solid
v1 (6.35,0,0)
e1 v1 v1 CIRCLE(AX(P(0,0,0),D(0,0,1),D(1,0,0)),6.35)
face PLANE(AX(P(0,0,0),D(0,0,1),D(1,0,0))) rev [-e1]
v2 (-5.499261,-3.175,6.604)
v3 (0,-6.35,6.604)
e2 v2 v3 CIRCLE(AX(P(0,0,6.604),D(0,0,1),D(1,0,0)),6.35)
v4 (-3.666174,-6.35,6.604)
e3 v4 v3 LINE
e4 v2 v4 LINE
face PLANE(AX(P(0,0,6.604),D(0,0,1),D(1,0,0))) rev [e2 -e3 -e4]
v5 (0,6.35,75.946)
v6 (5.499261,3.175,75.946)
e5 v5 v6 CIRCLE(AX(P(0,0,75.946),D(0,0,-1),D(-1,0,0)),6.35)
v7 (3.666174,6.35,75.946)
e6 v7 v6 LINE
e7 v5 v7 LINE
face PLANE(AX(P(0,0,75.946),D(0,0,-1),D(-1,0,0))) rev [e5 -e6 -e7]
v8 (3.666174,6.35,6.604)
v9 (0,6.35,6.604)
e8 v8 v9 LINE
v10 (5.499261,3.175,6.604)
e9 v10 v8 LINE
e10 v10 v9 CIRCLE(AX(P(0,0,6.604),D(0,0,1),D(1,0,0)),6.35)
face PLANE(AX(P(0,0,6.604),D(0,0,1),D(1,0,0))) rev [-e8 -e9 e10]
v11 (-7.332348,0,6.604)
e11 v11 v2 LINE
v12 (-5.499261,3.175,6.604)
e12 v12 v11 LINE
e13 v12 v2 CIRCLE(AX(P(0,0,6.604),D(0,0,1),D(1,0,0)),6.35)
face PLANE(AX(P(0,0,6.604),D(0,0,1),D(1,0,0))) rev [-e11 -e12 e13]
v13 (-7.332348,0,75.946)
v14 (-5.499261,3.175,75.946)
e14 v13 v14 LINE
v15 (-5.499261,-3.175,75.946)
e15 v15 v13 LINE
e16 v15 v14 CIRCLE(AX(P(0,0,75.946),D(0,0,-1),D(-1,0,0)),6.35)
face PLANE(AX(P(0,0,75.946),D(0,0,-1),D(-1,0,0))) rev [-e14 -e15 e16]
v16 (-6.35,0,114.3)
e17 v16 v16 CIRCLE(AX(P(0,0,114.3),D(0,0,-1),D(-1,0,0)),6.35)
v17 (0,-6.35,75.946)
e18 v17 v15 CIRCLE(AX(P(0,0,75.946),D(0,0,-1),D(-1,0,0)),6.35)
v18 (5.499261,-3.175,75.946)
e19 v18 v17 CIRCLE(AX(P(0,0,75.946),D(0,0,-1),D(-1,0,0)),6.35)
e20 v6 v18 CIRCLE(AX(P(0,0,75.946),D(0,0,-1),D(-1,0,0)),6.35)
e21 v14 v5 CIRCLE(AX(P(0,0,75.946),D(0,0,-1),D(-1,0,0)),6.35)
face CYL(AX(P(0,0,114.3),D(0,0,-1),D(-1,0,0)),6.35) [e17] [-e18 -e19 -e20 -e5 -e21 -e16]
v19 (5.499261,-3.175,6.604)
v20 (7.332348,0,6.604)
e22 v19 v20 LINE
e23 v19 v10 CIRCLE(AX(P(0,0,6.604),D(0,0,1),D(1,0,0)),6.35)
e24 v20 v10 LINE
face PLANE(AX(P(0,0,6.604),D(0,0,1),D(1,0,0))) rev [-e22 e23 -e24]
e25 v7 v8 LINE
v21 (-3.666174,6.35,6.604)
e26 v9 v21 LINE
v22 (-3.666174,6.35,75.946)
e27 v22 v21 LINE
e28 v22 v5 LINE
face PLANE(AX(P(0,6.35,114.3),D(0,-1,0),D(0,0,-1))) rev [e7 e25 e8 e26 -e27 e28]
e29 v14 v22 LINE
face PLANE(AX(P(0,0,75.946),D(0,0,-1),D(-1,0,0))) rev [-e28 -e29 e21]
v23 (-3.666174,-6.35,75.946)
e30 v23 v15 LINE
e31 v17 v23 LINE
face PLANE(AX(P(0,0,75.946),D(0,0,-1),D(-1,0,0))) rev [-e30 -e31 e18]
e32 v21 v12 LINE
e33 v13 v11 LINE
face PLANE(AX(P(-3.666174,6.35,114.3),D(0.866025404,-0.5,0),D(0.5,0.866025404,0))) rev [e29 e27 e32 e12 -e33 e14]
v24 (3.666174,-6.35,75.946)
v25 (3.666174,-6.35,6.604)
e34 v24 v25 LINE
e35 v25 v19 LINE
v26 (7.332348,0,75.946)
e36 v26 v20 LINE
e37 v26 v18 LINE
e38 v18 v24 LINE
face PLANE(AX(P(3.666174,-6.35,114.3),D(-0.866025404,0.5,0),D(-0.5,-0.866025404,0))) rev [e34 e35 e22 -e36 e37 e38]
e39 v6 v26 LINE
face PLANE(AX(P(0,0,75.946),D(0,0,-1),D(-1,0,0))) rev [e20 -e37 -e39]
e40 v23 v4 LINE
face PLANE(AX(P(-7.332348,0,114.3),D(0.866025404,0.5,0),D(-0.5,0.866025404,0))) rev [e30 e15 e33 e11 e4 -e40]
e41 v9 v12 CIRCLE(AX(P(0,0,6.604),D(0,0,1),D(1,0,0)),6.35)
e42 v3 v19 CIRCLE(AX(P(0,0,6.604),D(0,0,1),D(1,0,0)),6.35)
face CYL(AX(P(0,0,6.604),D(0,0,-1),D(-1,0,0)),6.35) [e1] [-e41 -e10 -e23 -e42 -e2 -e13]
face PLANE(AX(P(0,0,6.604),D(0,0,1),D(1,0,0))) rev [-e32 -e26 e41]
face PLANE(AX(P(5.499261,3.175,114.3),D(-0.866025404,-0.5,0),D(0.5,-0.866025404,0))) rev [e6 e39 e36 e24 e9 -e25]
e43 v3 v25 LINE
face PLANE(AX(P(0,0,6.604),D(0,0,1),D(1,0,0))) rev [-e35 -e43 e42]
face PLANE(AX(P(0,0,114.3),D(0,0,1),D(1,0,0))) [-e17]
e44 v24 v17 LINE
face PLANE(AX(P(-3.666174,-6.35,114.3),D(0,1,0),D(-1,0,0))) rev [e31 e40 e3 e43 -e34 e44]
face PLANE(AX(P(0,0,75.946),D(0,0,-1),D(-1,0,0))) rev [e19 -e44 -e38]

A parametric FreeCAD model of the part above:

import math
import FreeCAD as App
import Part
import Sketcher
Q = App.Units.Quantity


def add_polygon(sketch, points):
    """Adds a closed chain of lines whose ends are joined by coincident constraints."""
    first, n = sketch.GeometryCount, len(points)
    for a, b in zip(points, points[1:] + points[:1]):
        sketch.addGeometry(Part.LineSegment(App.Vector(*a, 0), App.Vector(*b, 0)), False)
    for i in range(n):
        sketch.addConstraint(Sketcher.Constraint("Coincident", first + i, 2, first + (i + 1) % n, 1))

doc = App.newDocument("Part")
body = doc.addObject("PartDesign::Body", "Body")

sketch1 = doc.addObject("Sketcher::SketchObject", "Sketch")
body.addObject(sketch1)
sketch1.AttachmentSupport = (doc.XY_Plane, [""])
sketch1.MapMode = "FlatFace"
add_polygon(sketch1, [(7, 0), (4, 6), (-4, 6), (-7, 0), (-4, -6), (4, -6)])
sketch1.addConstraint(Sketcher.Constraint("Horizontal", 1))
sketch1.addConstraint(Sketcher.Constraint("Horizontal", 4))
sketch1.addConstraint(Sketcher.Constraint("Symmetric", 0, 2, 3, 2, -1, 1))
sketch1.addConstraint(Sketcher.Constraint("Symmetric", 2, 2, 5, 2, -1, 1))
sketch1.addConstraint(Sketcher.Constraint("PointOnObject", 2, 2, -1))
sketch1.addConstraint(Sketcher.Constraint("Parallel", 2, 5))
sketch1.addConstraint(Sketcher.Constraint("Vertical", 1, 2, 3, 2))
sketch1.addConstraint(Sketcher.Constraint("Angle", 0, Q("120 deg")))
sketch1.addConstraint(Sketcher.Constraint("DistanceY", 3, 2, 1, 2, Q("0.5 in")))
sketch1.addConstraint(Sketcher.Constraint("DistanceX", 1, 2, 1, 1, Q("7.332348 mm")))
pad1 = doc.addObject("PartDesign::Pad", "Pad")
body.addObject(pad1)
pad1.Profile = sketch1
pad1.Length = Q("4.5 in")

sketch2 = doc.addObject("Sketcher::SketchObject", "Sketch001")
body.addObject(sketch2)
sketch2.AttachmentSupport = (doc.XY_Plane, [""])
sketch2.MapMode = "FlatFace"
sketch2.addGeometry(Part.ArcOfCircle(Part.Circle(App.Vector(0, 0, 0), App.Vector(0, 0, 1), 6.4), math.radians(150), math.radians(210)), False)
sketch2.addGeometry(Part.LineSegment(App.Vector(-5.5, 3.2, 0), App.Vector(-7.3, 0, 0)), False)
sketch2.addGeometry(Part.LineSegment(App.Vector(-7.3, 0, 0), App.Vector(-5.5, -3.2, 0)), False)
sketch2.addGeometry(Part.ArcOfCircle(Part.Circle(App.Vector(0, 0, 0), App.Vector(0, 0, 1), 6.3), math.radians(90), math.radians(150)), False)
sketch2.addGeometry(Part.LineSegment(App.Vector(0, 6.3, 0), App.Vector(-3.7, 6.3, 0)), False)
sketch2.addGeometry(Part.LineSegment(App.Vector(-3.7, 6.3, 0), App.Vector(-5.5, 3.2, 0)), False)
sketch2.addGeometry(Part.ArcOfCircle(Part.Circle(App.Vector(0, 0, 0), App.Vector(0, 0, 1), 6.3), math.radians(30), math.radians(90)), False)
sketch2.addGeometry(Part.LineSegment(App.Vector(5.5, 3.2, 0), App.Vector(3.7, 6.3, 0)), False)
sketch2.addGeometry(Part.LineSegment(App.Vector(3.7, 6.3, 0), App.Vector(0, 6.3, 0)), False)
sketch2.addGeometry(Part.LineSegment(App.Vector(5.5, -3.2, 0), App.Vector(7.3, 0, 0)), False)
sketch2.addGeometry(Part.LineSegment(App.Vector(7.3, 0, 0), App.Vector(5.5, 3.2, 0)), False)
sketch2.addGeometry(Part.ArcOfCircle(Part.Circle(App.Vector(0, 0, 0), App.Vector(0, 0, 1), 6.4), math.radians(0), math.radians(30)), False)
sketch2.addGeometry(Part.ArcOfCircle(Part.Circle(App.Vector(0, 0, 0), App.Vector(0, 0, 1), 6.4), math.radians(-30), math.radians(0)), False)
sketch2.addGeometry(Part.LineSegment(App.Vector(3.7, -6.3, 0), App.Vector(5.5, -3.2, 0)), False)
sketch2.addGeometry(Part.ArcOfCircle(Part.Circle(App.Vector(0, 0, 0), App.Vector(0, 0, 1), 6.3), math.radians(-90), math.radians(-30)), False)
sketch2.addGeometry(Part.LineSegment(App.Vector(0, -6.3, 0), App.Vector(3.7, -6.3, 0)), False)
sketch2.addGeometry(Part.LineSegment(App.Vector(-3.7, -6.3, 0), App.Vector(0, -6.3, 0)), False)
sketch2.addGeometry(Part.ArcOfCircle(Part.Circle(App.Vector(0, 0, 0), App.Vector(0, 0, 1), 6.4), math.radians(-150), math.radians(-90)), False)
sketch2.addGeometry(Part.LineSegment(App.Vector(-5.5, -3.2, 0), App.Vector(-3.7, -6.3, 0)), False)
sketch2.addConstraint(Sketcher.Constraint("Tangent", 0, 1, 1, 1))
sketch2.addConstraint(Sketcher.Constraint("Coincident", 1, 2, 2, 1))
sketch2.addConstraint(Sketcher.Constraint("Tangent", 2, 2, 0, 2))
sketch2.addConstraint(Sketcher.Constraint("Tangent", 3, 1, 4, 1))
sketch2.addConstraint(Sketcher.Constraint("Coincident", 4, 2, 5, 1))
sketch2.addConstraint(Sketcher.Constraint("Tangent", 5, 2, 3, 2))
sketch2.addConstraint(Sketcher.Constraint("Tangent", 6, 1, 7, 1))
sketch2.addConstraint(Sketcher.Constraint("Coincident", 7, 2, 8, 1))
sketch2.addConstraint(Sketcher.Constraint("Tangent", 8, 2, 6, 2))
sketch2.addConstraint(Sketcher.Constraint("Coincident", 9, 2, 10, 1))
sketch2.addConstraint(Sketcher.Constraint("Tangent", 10, 2, 11, 2))
sketch2.addConstraint(Sketcher.Constraint("Tangent", 11, 1, 12, 2))
sketch2.addConstraint(Sketcher.Constraint("Tangent", 12, 1, 9, 1))
sketch2.addConstraint(Sketcher.Constraint("Tangent", 13, 2, 14, 2))
sketch2.addConstraint(Sketcher.Constraint("Tangent", 14, 1, 15, 1))
sketch2.addConstraint(Sketcher.Constraint("Coincident", 15, 2, 13, 1))
sketch2.addConstraint(Sketcher.Constraint("Tangent", 16, 2, 17, 2))
sketch2.addConstraint(Sketcher.Constraint("Tangent", 17, 1, 18, 1))
sketch2.addConstraint(Sketcher.Constraint("Coincident", 18, 2, 16, 1))
sketch2.addConstraint(Sketcher.Constraint("Horizontal", 4))
sketch2.addConstraint(Sketcher.Constraint("Horizontal", 8))
sketch2.addConstraint(Sketcher.Constraint("Horizontal", 15))
sketch2.addConstraint(Sketcher.Constraint("Horizontal", 16))
sketch2.addConstraint(Sketcher.Constraint("Coincident", 0, 3, -1, 1))
sketch2.addConstraint(Sketcher.Constraint("Coincident", 3, 3, -1, 1))
sketch2.addConstraint(Sketcher.Constraint("Coincident", 6, 3, -1, 1))
sketch2.addConstraint(Sketcher.Constraint("Coincident", 11, 3, -1, 1))
sketch2.addConstraint(Sketcher.Constraint("Coincident", 14, 3, -1, 1))
sketch2.addConstraint(Sketcher.Constraint("Coincident", 17, 3, -1, 1))
sketch2.addConstraint(Sketcher.Constraint("Coincident", 5, 2, 0, 1))
sketch2.addConstraint(Sketcher.Constraint("Coincident", 10, 2, 6, 1))
sketch2.addConstraint(Sketcher.Constraint("Coincident", 13, 2, 12, 1))
sketch2.addConstraint(Sketcher.Constraint("Coincident", 17, 1, 2, 2))
sketch2.addConstraint(Sketcher.Constraint("Equal", 3, 6))
sketch2.addConstraint(Sketcher.Constraint("Equal", 11, 12))
sketch2.addConstraint(Sketcher.Constraint("Symmetric", 1, 2, 9, 2, -1, 1))
sketch2.addConstraint(Sketcher.Constraint("PointOnObject", 1, 2, -1))
sketch2.addConstraint(Sketcher.Constraint("PointOnObject", 11, 1, -1))
sketch2.addConstraint(Sketcher.Constraint("Equal", 2, 5))
sketch2.addConstraint(Sketcher.Constraint("Radius", 0, Q("0.25 in")))
pocket1 = doc.addObject("PartDesign::Pocket", "Pocket")
body.addObject(pocket1)
pocket1.Profile = sketch2
pocket1.Length = Q("0.26 in")
pocket1.Reversed = True

sketch3 = doc.addObject("Sketcher::SketchObject", "Sketch002")
body.addObject(sketch3)
sketch3.AttachmentSupport = (doc.XY_Plane, [""])
sketch3.MapMode = "FlatFace"
sketch3.AttachmentOffset = App.Placement(App.Vector(0, 0, 2.99 * 25.4), App.Rotation())
sketch3.addGeometry(Part.ArcOfCircle(Part.Circle(App.Vector(0, 0, 0), App.Vector(0, 0, 1), 6.4), math.radians(-150), math.radians(-90)), False)
sketch3.addGeometry(Part.LineSegment(App.Vector(0, -6.3, 0), App.Vector(-3.7, -6.3, 0)), False)
sketch3.addGeometry(Part.LineSegment(App.Vector(-3.7, -6.3, 0), App.Vector(-5.5, -3.2, 0)), False)
sketch3.addGeometry(Part.ArcOfCircle(Part.Circle(App.Vector(0, 0, 0), App.Vector(0, 0, 1), 6.3), math.radians(-90), math.radians(-30)), False)
sketch3.addGeometry(Part.LineSegment(App.Vector(5.5, -3.2, 0), App.Vector(3.7, -6.3, 0)), False)
sketch3.addGeometry(Part.LineSegment(App.Vector(3.7, -6.3, 0), App.Vector(0, -6.3, 0)), False)
sketch3.addGeometry(Part.ArcOfCircle(Part.Circle(App.Vector(0, 0, 0), App.Vector(0, 0, 1), 6.3), math.radians(-30), math.radians(30)), False)
sketch3.addGeometry(Part.LineSegment(App.Vector(5.5, 3.2, 0), App.Vector(7.3, 0, 0)), False)
sketch3.addGeometry(Part.LineSegment(App.Vector(7.3, 0, 0), App.Vector(5.5, -3.2, 0)), False)
sketch3.addGeometry(Part.LineSegment(App.Vector(0, 6.3, 0), App.Vector(3.7, 6.3, 0)), False)
sketch3.addGeometry(Part.LineSegment(App.Vector(3.7, 6.3, 0), App.Vector(5.5, 3.2, 0)), False)
sketch3.addGeometry(Part.ArcOfCircle(Part.Circle(App.Vector(0, 0, 0), App.Vector(0, 0, 1), 6.3), math.radians(30), math.radians(90)), False)
sketch3.addGeometry(Part.LineSegment(App.Vector(-3.7, 6.3, 0), App.Vector(0, 6.3, 0)), False)
sketch3.addGeometry(Part.ArcOfCircle(Part.Circle(App.Vector(0, 0, 0), App.Vector(0, 0, 1), 6.3), math.radians(90), math.radians(150)), False)
sketch3.addGeometry(Part.LineSegment(App.Vector(-5.5, 3.2, 0), App.Vector(-3.7, 6.3, 0)), False)
sketch3.addGeometry(Part.LineSegment(App.Vector(-7.3, 0, 0), App.Vector(-5.5, 3.2, 0)), False)
sketch3.addGeometry(Part.ArcOfCircle(Part.Circle(App.Vector(0, 0, 0), App.Vector(0, 0, 1), 6.4), math.radians(150), math.radians(180)), False)
sketch3.addGeometry(Part.ArcOfCircle(Part.Circle(App.Vector(0, 0, 0), App.Vector(0, 0, 1), 6.3), math.radians(180), math.radians(210)), False)
sketch3.addGeometry(Part.LineSegment(App.Vector(-5.5, -3.2, 0), App.Vector(-7.3, 0, 0)), False)
sketch3.addConstraint(Sketcher.Constraint("Tangent", 0, 2, 1, 1))
sketch3.addConstraint(Sketcher.Constraint("Coincident", 1, 2, 2, 1))
sketch3.addConstraint(Sketcher.Constraint("Tangent", 2, 2, 0, 1))
sketch3.addConstraint(Sketcher.Constraint("Tangent", 3, 2, 4, 1))
sketch3.addConstraint(Sketcher.Constraint("Coincident", 4, 2, 5, 1))
sketch3.addConstraint(Sketcher.Constraint("Tangent", 5, 2, 3, 1))
sketch3.addConstraint(Sketcher.Constraint("Tangent", 6, 2, 7, 1))
sketch3.addConstraint(Sketcher.Constraint("Coincident", 7, 2, 8, 1))
sketch3.addConstraint(Sketcher.Constraint("Tangent", 8, 2, 6, 1))
sketch3.addConstraint(Sketcher.Constraint("Coincident", 9, 2, 10, 1))
sketch3.addConstraint(Sketcher.Constraint("Tangent", 10, 2, 11, 1))
sketch3.addConstraint(Sketcher.Constraint("Tangent", 11, 2, 9, 1))
sketch3.addConstraint(Sketcher.Constraint("Tangent", 12, 2, 13, 1))
sketch3.addConstraint(Sketcher.Constraint("Tangent", 13, 2, 14, 1))
sketch3.addConstraint(Sketcher.Constraint("Coincident", 14, 2, 12, 1))
sketch3.addConstraint(Sketcher.Constraint("Tangent", 15, 2, 16, 1))
sketch3.addConstraint(Sketcher.Constraint("Tangent", 16, 2, 17, 1))
sketch3.addConstraint(Sketcher.Constraint("Tangent", 17, 2, 18, 1))
sketch3.addConstraint(Sketcher.Constraint("Coincident", 18, 2, 15, 1))
sketch3.addConstraint(Sketcher.Constraint("Horizontal", 1))
sketch3.addConstraint(Sketcher.Constraint("Horizontal", 5))
sketch3.addConstraint(Sketcher.Constraint("Horizontal", 9))
sketch3.addConstraint(Sketcher.Constraint("Horizontal", 12))
sketch3.addConstraint(Sketcher.Constraint("Coincident", 0, 3, -1, 1))
sketch3.addConstraint(Sketcher.Constraint("Coincident", 3, 3, -1, 1))
sketch3.addConstraint(Sketcher.Constraint("Coincident", 6, 3, -1, 1))
sketch3.addConstraint(Sketcher.Constraint("Coincident", 11, 3, -1, 1))
sketch3.addConstraint(Sketcher.Constraint("Coincident", 13, 3, -1, 1))
sketch3.addConstraint(Sketcher.Constraint("Coincident", 16, 3, -1, 1))
sketch3.addConstraint(Sketcher.Constraint("Coincident", 8, 2, 3, 2))
sketch3.addConstraint(Sketcher.Constraint("Coincident", 10, 2, 6, 2))
sketch3.addConstraint(Sketcher.Constraint("Coincident", 15, 2, 13, 2))
sketch3.addConstraint(Sketcher.Constraint("Coincident", 17, 2, 2, 2))
sketch3.addConstraint(Sketcher.Constraint("Equal", 0, 3))
sketch3.addConstraint(Sketcher.Constraint("Equal", 11, 13))
sketch3.addConstraint(Sketcher.Constraint("Symmetric", 7, 2, 18, 2, -1, 1))
sketch3.addConstraint(Sketcher.Constraint("PointOnObject", 7, 2, -1))
sketch3.addConstraint(Sketcher.Constraint("PointOnObject", 16, 2, -1))
sketch3.addConstraint(Sketcher.Constraint("Equal", 4, 7))
sketch3.addConstraint(Sketcher.Constraint("Radius", 0, Q("0.25 in")))
pocket2 = doc.addObject("PartDesign::Pocket", "Pocket001")
body.addObject(pocket2)
pocket2.Profile = sketch3
pocket2.Type = "ThroughAll"
pocket2.Reversed = True

doc.recompute()
